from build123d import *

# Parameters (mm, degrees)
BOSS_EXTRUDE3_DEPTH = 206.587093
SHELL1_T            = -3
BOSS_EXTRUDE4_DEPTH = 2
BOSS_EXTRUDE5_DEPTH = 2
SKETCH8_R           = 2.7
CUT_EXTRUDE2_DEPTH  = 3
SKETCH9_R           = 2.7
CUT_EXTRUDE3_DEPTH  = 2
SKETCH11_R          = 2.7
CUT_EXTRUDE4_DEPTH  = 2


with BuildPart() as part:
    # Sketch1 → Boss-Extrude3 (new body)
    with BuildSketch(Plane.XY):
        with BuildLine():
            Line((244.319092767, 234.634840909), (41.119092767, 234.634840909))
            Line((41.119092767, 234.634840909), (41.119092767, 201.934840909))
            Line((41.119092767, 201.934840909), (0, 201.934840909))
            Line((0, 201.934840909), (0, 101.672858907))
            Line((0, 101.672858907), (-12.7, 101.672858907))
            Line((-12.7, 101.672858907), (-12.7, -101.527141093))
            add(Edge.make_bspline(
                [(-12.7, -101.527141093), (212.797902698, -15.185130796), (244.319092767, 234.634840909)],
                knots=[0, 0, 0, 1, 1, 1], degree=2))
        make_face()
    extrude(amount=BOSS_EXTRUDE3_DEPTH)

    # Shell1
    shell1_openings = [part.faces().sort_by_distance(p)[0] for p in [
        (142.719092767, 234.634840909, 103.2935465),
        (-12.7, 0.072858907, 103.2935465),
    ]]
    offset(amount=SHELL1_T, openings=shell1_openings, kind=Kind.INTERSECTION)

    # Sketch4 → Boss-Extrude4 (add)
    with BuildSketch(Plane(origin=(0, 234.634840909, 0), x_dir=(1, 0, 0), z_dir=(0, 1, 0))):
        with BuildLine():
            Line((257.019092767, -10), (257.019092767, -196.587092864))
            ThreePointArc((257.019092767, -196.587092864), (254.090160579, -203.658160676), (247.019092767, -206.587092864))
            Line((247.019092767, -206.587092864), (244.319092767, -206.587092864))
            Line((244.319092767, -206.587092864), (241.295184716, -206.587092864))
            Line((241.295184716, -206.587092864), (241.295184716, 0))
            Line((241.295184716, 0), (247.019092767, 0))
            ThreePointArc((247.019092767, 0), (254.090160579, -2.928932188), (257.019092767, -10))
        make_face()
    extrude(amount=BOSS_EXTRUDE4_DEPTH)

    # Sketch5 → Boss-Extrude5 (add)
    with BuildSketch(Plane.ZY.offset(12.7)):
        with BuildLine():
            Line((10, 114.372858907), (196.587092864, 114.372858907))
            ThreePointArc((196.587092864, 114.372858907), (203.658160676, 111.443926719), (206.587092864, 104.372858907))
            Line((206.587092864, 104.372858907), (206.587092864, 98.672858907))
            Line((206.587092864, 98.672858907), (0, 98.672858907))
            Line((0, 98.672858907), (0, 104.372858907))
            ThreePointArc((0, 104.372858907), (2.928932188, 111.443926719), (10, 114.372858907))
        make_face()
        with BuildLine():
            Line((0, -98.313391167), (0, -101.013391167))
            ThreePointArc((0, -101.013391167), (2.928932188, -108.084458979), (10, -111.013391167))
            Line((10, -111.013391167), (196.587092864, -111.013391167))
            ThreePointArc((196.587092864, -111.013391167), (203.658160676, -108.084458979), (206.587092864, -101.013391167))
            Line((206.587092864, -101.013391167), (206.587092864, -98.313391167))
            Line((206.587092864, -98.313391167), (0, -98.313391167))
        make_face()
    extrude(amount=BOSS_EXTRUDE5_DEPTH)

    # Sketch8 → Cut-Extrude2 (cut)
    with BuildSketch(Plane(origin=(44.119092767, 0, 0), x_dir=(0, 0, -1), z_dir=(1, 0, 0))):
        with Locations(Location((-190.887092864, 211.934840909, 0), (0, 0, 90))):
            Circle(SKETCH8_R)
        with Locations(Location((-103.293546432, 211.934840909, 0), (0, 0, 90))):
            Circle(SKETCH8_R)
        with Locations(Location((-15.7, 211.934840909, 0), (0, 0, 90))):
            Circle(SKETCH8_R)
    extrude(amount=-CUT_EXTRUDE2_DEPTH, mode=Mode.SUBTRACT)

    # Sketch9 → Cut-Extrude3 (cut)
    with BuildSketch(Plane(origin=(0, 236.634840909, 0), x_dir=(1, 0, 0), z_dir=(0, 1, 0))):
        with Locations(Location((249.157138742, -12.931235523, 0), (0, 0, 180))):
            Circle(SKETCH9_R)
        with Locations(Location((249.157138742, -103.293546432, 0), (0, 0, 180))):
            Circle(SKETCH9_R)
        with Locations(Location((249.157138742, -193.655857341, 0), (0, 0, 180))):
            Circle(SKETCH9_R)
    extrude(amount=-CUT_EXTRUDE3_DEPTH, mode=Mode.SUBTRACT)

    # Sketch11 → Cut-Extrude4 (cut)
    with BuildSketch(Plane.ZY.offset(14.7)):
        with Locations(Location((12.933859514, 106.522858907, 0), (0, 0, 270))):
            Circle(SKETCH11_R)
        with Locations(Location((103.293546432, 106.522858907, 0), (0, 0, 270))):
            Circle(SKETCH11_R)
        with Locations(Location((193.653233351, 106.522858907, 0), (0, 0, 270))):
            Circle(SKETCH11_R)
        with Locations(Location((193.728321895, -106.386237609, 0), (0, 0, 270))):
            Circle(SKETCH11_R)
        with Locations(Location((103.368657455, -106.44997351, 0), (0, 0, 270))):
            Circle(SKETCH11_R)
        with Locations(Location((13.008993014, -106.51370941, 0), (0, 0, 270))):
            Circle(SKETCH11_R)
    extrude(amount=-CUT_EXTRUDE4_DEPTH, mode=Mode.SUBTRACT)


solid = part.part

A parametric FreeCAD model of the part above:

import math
import FreeCAD as App
import Part
import Sketcher

V = App.Vector
Q = App.Units.Quantity


def faces_at(feature, points):
    """Names of the faces that lie closest to the given points."""
    faces = feature.Shape.Faces
    near = lambda p: min(range(len(faces)), key=lambda i: faces[i].distToShape(Part.Vertex(*p))[0])
    return sorted({f"Face{near(p) + 1}" for p in points})

doc = App.newDocument("Part")
params = doc.addObject("Spreadsheet::Sheet", "Params")
for row, (alias, value) in enumerate([
    ("sketch1_width", "203.2 mm"),
    ("sketch1_height", "32.7 mm"),
    ("pad1_length", "206.587093 mm"),
    ("thickness_wall", "3 mm"),
    ("sketch2_radius", "10 mm"),
    ("pad2_length", "2 mm"),
    ("sketch3_radius", "10 mm"),
    ("sketch3_width", "5.7 mm"),
    ("sketch3_width2", "2.7 mm"),
    ("pad3_length", "2 mm"),
    ("sketch4_diameter", "5.4 mm"),
    ("pocket1_length", "3 mm"),
    ("sketch5_diameter", "5.4 mm"),
    ("pocket2_length", "2 mm"),
    ("sketch6_diameter", "5.4 mm"),
    ("pocket3_length", "2 mm"),
], start=1):
    params.set(f"A{row}", alias)
    params.set(f"B{row}", "=" + value)
    params.setAlias(f"B{row}", alias)

body = doc.addObject("PartDesign::Body", "Body")

# Sketch on XY plane
sketch1 = body.newObject("Sketcher::SketchObject", "Sketch")
sketch1.AttachmentSupport = (doc.getObject("XY_Plane"), [""])
sketch1.MapMode = "FlatFace"
sketch1.addGeometry([
    Part.LineSegment(V(244.319093, 234.634841, 0), V(41.119093, 234.634841, 0)),  # 0
    Part.LineSegment(V(41.119093, 234.634841, 0), V(41.119093, 201.934841, 0)),  # 1
    Part.LineSegment(V(41.119093, 201.934841, 0), V(0, 201.934841, 0)),  # 2
    Part.LineSegment(V(0, 201.934841, 0), V(0, 101.672859, 0)),  # 3
    Part.LineSegment(V(0, 101.672859, 0), V(-12.7, 101.672859, 0)),  # 4
    Part.LineSegment(V(-12.7, 101.672859, 0), V(-12.7, -101.527141, 0)),  # 5
    Part.BSplineCurve([V(-12.7, -101.527141, 0), V(212.797903, -15.185131, 0), V(244.319093, 234.634841, 0)], [3, 3], [0, 1], False, 2, [1, 1, 1], False),  # 6
], False)
sketch1.addConstraint([
    Sketcher.Constraint("Block", 6),
    Sketcher.Constraint("Coincident", 0, 2, 1, 1),
    Sketcher.Constraint("Coincident", 1, 2, 2, 1),
    Sketcher.Constraint("Coincident", 2, 2, 3, 1),
    Sketcher.Constraint("Coincident", 3, 2, 4, 1),
    Sketcher.Constraint("Coincident", 4, 2, 5, 1),
    Sketcher.Constraint("Coincident", 5, 2, 6, 1),
    Sketcher.Constraint("Coincident", 6, 2, 0, 1),
    Sketcher.Constraint("Horizontal", 0),
    Sketcher.Constraint("Vertical", 1),
    Sketcher.Constraint("Horizontal", 2),
    Sketcher.Constraint("Vertical", 3),
    Sketcher.Constraint("Horizontal", 4),
    Sketcher.Constraint("Vertical", 5),
    Sketcher.Constraint("PointOnObject", 2, 2, -2),
    Sketcher.Constraint("Equal", 0, 5),
    Sketcher.Constraint("DistanceX", 0, 2, 0, 1, Q("203.2 mm")),
    Sketcher.Constraint("DistanceY", 1, 2, 1, 1, Q("32.7 mm")),
])
sketch1.setExpression("Constraints[16]", "Params.sketch1_width")
sketch1.setExpression("Constraints[17]", "Params.sketch1_height")
pad1 = body.newObject("PartDesign::Pad", "Pad")
pad1.Profile = sketch1
pad1.setExpression("Length", "Params.pad1_length")
doc.recompute()

thickness = body.newObject("PartDesign::Thickness", "Thickness")
thickness.Base = (pad1, faces_at(pad1, [(142.719, 234.635, 103.294), (-12.7, 0.073, 103.294)]))
thickness.setExpression("Value", "Params.thickness_wall")
thickness.Reversed = True
thickness.Join = "Intersection"

# Sketch on XZ plane
sketch2 = body.newObject("Sketcher::SketchObject", "Sketch001")
sketch2.AttachmentSupport = (doc.getObject("XZ_Plane"), [""])
sketch2.MapMode = "FlatFace"
sketch2.AttachmentOffset = App.Placement(V(0, 0, -234.634841), App.Rotation())
sketch2.addGeometry([
    Part.LineSegment(V(257, 197, 0), V(257, 10, 0)),  # 0
    Part.ArcOfCircle(Part.Circle(V(247, 10, 0), V(0, 0, 1), 10), math.radians(-90), math.radians(0)),  # 1
    Part.LineSegment(V(247, 0, 0), V(241, 0, 0)),  # 2
    Part.LineSegment(V(241, 0, 0), V(241, 207, 0)),  # 3
    Part.LineSegment(V(241, 207, 0), V(247, 207, 0)),  # 4
    Part.ArcOfCircle(Part.Circle(V(247, 197, 0), V(0, 0, 1), 10), math.radians(0), math.radians(90)),  # 5
], False)
sketch2.addConstraint([
    Sketcher.Constraint("Tangent", 0, 2, 1, 2),
    Sketcher.Constraint("Tangent", 1, 1, 2, 1),
    Sketcher.Constraint("Coincident", 2, 2, 3, 1),
    Sketcher.Constraint("Coincident", 3, 2, 4, 1),
    Sketcher.Constraint("Tangent", 4, 2, 5, 2),
    Sketcher.Constraint("Tangent", 5, 1, 0, 1),
    Sketcher.Constraint("Vertical", 0),
    Sketcher.Constraint("Horizontal", 2),
    Sketcher.Constraint("Vertical", 3),
    Sketcher.Constraint("Horizontal", 4),
    Sketcher.Constraint("Equal", 1, 5),
    Sketcher.Constraint("PointOnObject", 1, 1, -1),
    Sketcher.Constraint("Radius", 1, Q("10 mm")),
    Sketcher.Constraint("DistanceX", 2, 2, 2, 1, Q("5.723908 mm")),
    Sketcher.Constraint("DistanceY", 0, 2, 0, 1, Q("186.587093 mm")),
    Sketcher.Constraint("DistanceX", -1, 1, 1, 3, Q("247.019093 mm")),
])
sketch2.setExpression("Constraints[12]", "Params.sketch2_radius")
pad2 = body.newObject("PartDesign::Pad", "Pad001")
pad2.Profile = sketch2
pad2.setExpression("Length", "Params.pad2_length")
pad2.Reversed = True

# Sketch on YZ plane
sketch3 = body.newObject("Sketcher::SketchObject", "Sketch002")
sketch3.AttachmentSupport = (doc.getObject("YZ_Plane"), [""])
sketch3.MapMode = "FlatFace"
sketch3.AttachmentOffset = App.Placement(V(0, 0, -12.7), App.Rotation())
sketch3.addGeometry([
    Part.LineSegment(V(114.4, 196.6, 0), V(114.4, 10, 0)),  # 0
    Part.ArcOfCircle(Part.Circle(V(104.4, 10, 0), V(0, 0, 1), 10), math.radians(-90), math.radians(0)),  # 1
    Part.LineSegment(V(104.4, 0, 0), V(98.7, 0, 0)),  # 2
    Part.LineSegment(V(98.7, 0, 0), V(98.7, 206.6, 0)),  # 3
    Part.LineSegment(V(98.7, 206.6, 0), V(104.4, 206.6, 0)),  # 4
    Part.ArcOfCircle(Part.Circle(V(104.4, 196.6, 0), V(0, 0, 1), 10), math.radians(0), math.radians(90)),  # 5
    Part.LineSegment(V(-98.3, 0, 0), V(-101, 0, 0)),  # 6
    Part.ArcOfCircle(Part.Circle(V(-101, 10, 0), V(0, 0, 1), 10), math.radians(180), math.radians(270)),  # 7
    Part.LineSegment(V(-111, 10, 0), V(-111, 196.6, 0)),  # 8
    Part.ArcOfCircle(Part.Circle(V(-101, 196.6, 0), V(0, 0, 1), 10), math.radians(90), math.radians(180)),  # 9
    Part.LineSegment(V(-101, 206.6, 0), V(-98.3, 206.6, 0)),  # 10
    Part.LineSegment(V(-98.3, 206.6, 0), V(-98.3, 0, 0)),  # 11
], False)
sketch3.addConstraint([
    Sketcher.Constraint("Tangent", 0, 2, 1, 2),
    Sketcher.Constraint("Tangent", 1, 1, 2, 1),
    Sketcher.Constraint("Coincident", 2, 2, 3, 1),
    Sketcher.Constraint("Coincident", 3, 2, 4, 1),
    Sketcher.Constraint("Tangent", 4, 2, 5, 2),
    Sketcher.Constraint("Tangent", 5, 1, 0, 1),
    Sketcher.Constraint("Tangent", 6, 2, 7, 2),
    Sketcher.Constraint("Tangent", 7, 1, 8, 1),
    Sketcher.Constraint("Tangent", 8, 2, 9, 2),
    Sketcher.Constraint("Tangent", 9, 1, 10, 1),
    Sketcher.Constraint("Coincident", 10, 2, 11, 1),
    Sketcher.Constraint("Coincident", 11, 2, 6, 1),
    Sketcher.Constraint("Vertical", 0),
    Sketcher.Constraint("Horizontal", 2),
    Sketcher.Constraint("Vertical", 3),
    Sketcher.Constraint("Horizontal", 4),
    Sketcher.Constraint("Horizontal", 6),
    Sketcher.Constraint("Vertical", 8),
    Sketcher.Constraint("Horizontal", 10),
    Sketcher.Constraint("Vertical", 11),
    Sketcher.Constraint("Equal", 1, 5),
    Sketcher.Constraint("Equal", 5, 7),
    Sketcher.Constraint("Equal", 7, 9),
    Sketcher.Constraint("PointOnObject", 1, 1, -1),
    Sketcher.Constraint("PointOnObject", 6, 2, -1),
    Sketcher.Constraint("Horizontal", 5, 3, 9, 3),
    Sketcher.Constraint("Radius", 1, Q("10 mm")),
    Sketcher.Constraint("DistanceX", 2, 2, 2, 1, Q("5.7 mm")),
    Sketcher.Constraint("DistanceX", 6, 2, 6, 1, Q("2.7 mm")),
    Sketcher.Constraint("DistanceY", 0, 2, 0, 1, Q("186.587093 mm")),
    Sketcher.Constraint("DistanceX", -1, 1, 1, 3, Q("104.372859 mm")),
    Sketcher.Constraint("DistanceX", 7, 3, -1, 1, Q("101.013391 mm")),
])
sketch3.setExpression("Constraints[26]", "Params.sketch3_radius")
sketch3.setExpression("Constraints[27]", "Params.sketch3_width")
sketch3.setExpression("Constraints[28]", "Params.sketch3_width2")
pad3 = body.newObject("PartDesign::Pad", "Pad002")
pad3.Profile = sketch3
pad3.setExpression("Length", "Params.pad3_length")
pad3.Reversed = True

# Sketch on YZ plane
sketch4 = body.newObject("Sketcher::SketchObject", "Sketch003")
sketch4.AttachmentSupport = (doc.getObject("YZ_Plane"), [""])
sketch4.MapMode = "FlatFace"
sketch4.AttachmentOffset = App.Placement(V(0, 0, 44.119093), App.Rotation())
sketch4.addGeometry([
    Part.Circle(V(211.9, 190.9, 0), V(0, 0, 1), 2.7),
    Part.Circle(V(211.9, 103.3, 0), V(0, 0, 1), 2.7),
    Part.Circle(V(211.9, 15.7, 0), V(0, 0, 1), 2.7),
], False)
sketch4.addConstraint([
    Sketcher.Constraint("Equal", 0, 1),
    Sketcher.Constraint("Equal", 1, 2),
    Sketcher.Constraint("Vertical", 0, 3, 1, 3),
    Sketcher.Constraint("Vertical", 1, 3, 2, 3),
    Sketcher.Constraint("Diameter", 0, Q("5.4 mm")),
    Sketcher.Constraint("DistanceY", -1, 1, 2, 3, Q("15.7 mm")),
    Sketcher.Constraint("DistanceX", -1, 1, 0, 3, Q("211.934841 mm")),
    Sketcher.Constraint("DistanceY", -1, 1, 0, 3, Q("190.887093 mm")),
    Sketcher.Constraint("DistanceY", -1, 1, 1, 3, Q("103.293546 mm")),
])
sketch4.setExpression("Constraints[4]", "Params.sketch4_diameter")
pocket1 = body.newObject("PartDesign::Pocket", "Pocket")
pocket1.Profile = sketch4
pocket1.setExpression("Length", "Params.pocket1_length")

# Sketch on XZ plane
sketch5 = body.newObject("Sketcher::SketchObject", "Sketch004")
sketch5.AttachmentSupport = (doc.getObject("XZ_Plane"), [""])
sketch5.MapMode = "FlatFace"
sketch5.AttachmentOffset = App.Placement(V(0, 0, -236.634841), App.Rotation())
sketch5.addGeometry([
    Part.Circle(V(249.2, 12.9, 0), V(0, 0, 1), 2.7),
    Part.Circle(V(249.2, 103.3, 0), V(0, 0, 1), 2.7),
    Part.Circle(V(249.2, 193.7, 0), V(0, 0, 1), 2.7),
], False)
sketch5.addConstraint([
    Sketcher.Constraint("Equal", 0, 1),
    Sketcher.Constraint("Equal", 1, 2),
    Sketcher.Constraint("Vertical", 0, 3, 1, 3),
    Sketcher.Constraint("Vertical", 1, 3, 2, 3),
    Sketcher.Constraint("Diameter", 0, Q("5.4 mm")),
    Sketcher.Constraint("DistanceX", -1, 1, 0, 3, Q("249.157139 mm")),
    Sketcher.Constraint("DistanceY", 0, 3, 1, 3, Q("90.362311 mm")),
    Sketcher.Constraint("DistanceY", 1, 3, 2, 3, Q("90.362311 mm")),
    Sketcher.Constraint("DistanceY", -1, 1, 0, 3, Q("12.931236 mm")),
])
sketch5.setExpression("Constraints[4]", "Params.sketch5_diameter")
pocket2 = body.newObject("PartDesign::Pocket", "Pocket001")
pocket2.Profile = sketch5
pocket2.setExpression("Length", "Params.pocket2_length")
pocket2.Reversed = True

# Sketch on YZ plane
sketch6 = body.newObject("Sketcher::SketchObject", "Sketch005")
sketch6.AttachmentSupport = (doc.getObject("YZ_Plane"), [""])
sketch6.MapMode = "FlatFace"
sketch6.AttachmentOffset = App.Placement(V(0, 0, -14.7), App.Rotation())
sketch6.addGeometry([
    Part.Circle(V(106.5, 12.9, 0), V(0, 0, 1), 2.7),  # 0
    Part.Circle(V(106.5, 103.3, 0), V(0, 0, 1), 2.7),  # 1
    Part.Circle(V(106.5, 193.7, 0), V(0, 0, 1), 2.7),  # 2
    Part.Circle(V(-106.4, 193.7, 0), V(0, 0, 1), 2.7),  # 3
    Part.Circle(V(-106.4, 103.4, 0), V(0, 0, 1), 2.7),  # 4
    Part.Circle(V(-106.5, 13, 0), V(0, 0, 1), 2.7),  # 5
], False)
sketch6.addConstraint([
    Sketcher.Constraint("Equal", 0, 1),
    Sketcher.Constraint("Equal", 1, 2),
    Sketcher.Constraint("Equal", 2, 3),
    Sketcher.Constraint("Equal", 3, 4),
    Sketcher.Constraint("Equal", 4, 5),
    Sketcher.Constraint("Vertical", 0, 3, 1, 3),
    Sketcher.Constraint("Vertical", 1, 3, 2, 3),
    Sketcher.Constraint("Diameter", 0, Q("5.4 mm")),
    Sketcher.Constraint("DistanceX", -1, 1, 0, 3, Q("106.522859 mm")),
    Sketcher.Constraint("DistanceY", -1, 1, 0, 3, Q("12.93386 mm")),
    Sketcher.Constraint("DistanceY", -1, 1, 3, 3, Q("193.728322 mm")),
    Sketcher.Constraint("DistanceX", 5, 3, -1, 1, Q("106.513709 mm")),
    Sketcher.Constraint("DistanceY", 2, 3, 3, 3, Q("0.075089 mm")),
    Sketcher.Constraint("DistanceY", 1, 3, 4, 3, Q("0.075111 mm")),
    Sketcher.Constraint("DistanceX", 5, 3, 3, 3, Q("0.127472 mm")),
    Sketcher.Constraint("DistanceY", 5, 3, 3, 3, Q("180.719329 mm")),
    Sketcher.Constraint("DistanceY", -1, 1, 1, 3, Q("103.293546 mm")),
    Sketcher.Constraint("DistanceX", 4, 3, -1, 1, Q("106.449974 mm")),
])
sketch6.setExpression("Constraints[7]", "Params.sketch6_diameter")
pocket3 = body.newObject("PartDesign::Pocket", "Pocket002")
pocket3.Profile = sketch6
pocket3.setExpression("Length", "Params.pocket3_length")
pocket3.Reversed = True

doc.recompute()
